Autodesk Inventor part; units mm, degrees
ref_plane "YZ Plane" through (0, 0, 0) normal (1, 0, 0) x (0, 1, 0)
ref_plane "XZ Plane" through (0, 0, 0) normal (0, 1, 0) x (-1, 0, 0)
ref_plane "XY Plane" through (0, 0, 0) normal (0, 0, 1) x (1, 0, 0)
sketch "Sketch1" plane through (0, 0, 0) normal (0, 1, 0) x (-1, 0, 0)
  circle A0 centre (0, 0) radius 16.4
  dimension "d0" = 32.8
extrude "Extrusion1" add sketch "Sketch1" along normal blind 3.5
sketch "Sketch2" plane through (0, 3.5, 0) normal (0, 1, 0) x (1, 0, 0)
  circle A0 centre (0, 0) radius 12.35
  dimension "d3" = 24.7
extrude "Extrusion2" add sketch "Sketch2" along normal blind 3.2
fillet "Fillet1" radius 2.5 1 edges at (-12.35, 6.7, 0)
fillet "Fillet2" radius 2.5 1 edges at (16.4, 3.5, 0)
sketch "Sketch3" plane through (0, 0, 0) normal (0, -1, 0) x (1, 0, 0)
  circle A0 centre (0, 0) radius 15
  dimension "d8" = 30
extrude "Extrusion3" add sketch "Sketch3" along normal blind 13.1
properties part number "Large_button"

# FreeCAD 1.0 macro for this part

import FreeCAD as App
import Part
import Sketcher

V = App.Vector
Q = App.Units.Quantity


def edges_at(feature, points):
    """Names of the edges that pass closest to the given points."""
    edges = feature.Shape.Edges
    near = lambda p: min(range(len(edges)), key=lambda i: edges[i].distToShape(Part.Vertex(*p))[0])
    return sorted({f"Edge{near(p) + 1}" for p in points})

doc = App.newDocument("Part")
body = doc.addObject("PartDesign::Body", "Body")

# Sketch on XZ plane
sketch1 = body.newObject("Sketcher::SketchObject", "Sketch")
sketch1.AttachmentSupport = (doc.getObject("XZ_Plane"), [""])
sketch1.MapMode = "FlatFace"
sketch1.addGeometry(Part.Circle(V(0, 0, 0), V(0, 0, 1), 16), False)
sketch1.addConstraint(Sketcher.Constraint("Coincident", 0, 3, -1, 1))
sketch1.addConstraint(Sketcher.Constraint("Diameter", 0, Q("32.8 mm")))
pad1 = body.newObject("PartDesign::Pad", "Pad")
pad1.Profile = sketch1
pad1.Length = 3.5
pad1.Reversed = True

# Sketch on XZ plane
sketch2 = body.newObject("Sketcher::SketchObject", "Sketch001")
sketch2.AttachmentSupport = (doc.getObject("XZ_Plane"), [""])
sketch2.MapMode = "FlatFace"
sketch2.AttachmentOffset = App.Placement(V(0, 0, -3.5), App.Rotation())
sketch2.addGeometry(Part.Circle(V(0, 0, 0), V(0, 0, 1), 12), False)
sketch2.addConstraint(Sketcher.Constraint("Coincident", 0, 3, -1, 1))
sketch2.addConstraint(Sketcher.Constraint("Diameter", 0, Q("24.7 mm")))
pad2 = body.newObject("PartDesign::Pad", "Pad001")
pad2.Profile = sketch2
pad2.Length = 3.2
pad2.Reversed = True
doc.recompute()

fillet = body.newObject("PartDesign::Fillet", "Fillet")
fillet.Base = (pad2, edges_at(pad2, [(-12.35, 6.7, 0)]))
fillet.Radius = 2.5
doc.recompute()

fillet2 = body.newObject("PartDesign::Fillet", "Fillet001")
fillet2.Base = (fillet, edges_at(fillet, [(16.4, 3.5, 0)]))
fillet2.Radius = 2.5

# Sketch on XZ plane
sketch3 = body.newObject("Sketcher::SketchObject", "Sketch002")
sketch3.AttachmentSupport = (doc.getObject("XZ_Plane"), [""])
sketch3.MapMode = "FlatFace"
sketch3.addGeometry(Part.Circle(V(0, 0, 0), V(0, 0, 1), 15), False)
sketch3.addConstraint(Sketcher.Constraint("Coincident", 0, 3, -1, 1))
sketch3.addConstraint(Sketcher.Constraint("Diameter", 0, Q("30 mm")))
pad3 = body.newObject("PartDesign::Pad", "Pad002")
pad3.Profile = sketch3
pad3.Length = 13.1

doc.recompute()
